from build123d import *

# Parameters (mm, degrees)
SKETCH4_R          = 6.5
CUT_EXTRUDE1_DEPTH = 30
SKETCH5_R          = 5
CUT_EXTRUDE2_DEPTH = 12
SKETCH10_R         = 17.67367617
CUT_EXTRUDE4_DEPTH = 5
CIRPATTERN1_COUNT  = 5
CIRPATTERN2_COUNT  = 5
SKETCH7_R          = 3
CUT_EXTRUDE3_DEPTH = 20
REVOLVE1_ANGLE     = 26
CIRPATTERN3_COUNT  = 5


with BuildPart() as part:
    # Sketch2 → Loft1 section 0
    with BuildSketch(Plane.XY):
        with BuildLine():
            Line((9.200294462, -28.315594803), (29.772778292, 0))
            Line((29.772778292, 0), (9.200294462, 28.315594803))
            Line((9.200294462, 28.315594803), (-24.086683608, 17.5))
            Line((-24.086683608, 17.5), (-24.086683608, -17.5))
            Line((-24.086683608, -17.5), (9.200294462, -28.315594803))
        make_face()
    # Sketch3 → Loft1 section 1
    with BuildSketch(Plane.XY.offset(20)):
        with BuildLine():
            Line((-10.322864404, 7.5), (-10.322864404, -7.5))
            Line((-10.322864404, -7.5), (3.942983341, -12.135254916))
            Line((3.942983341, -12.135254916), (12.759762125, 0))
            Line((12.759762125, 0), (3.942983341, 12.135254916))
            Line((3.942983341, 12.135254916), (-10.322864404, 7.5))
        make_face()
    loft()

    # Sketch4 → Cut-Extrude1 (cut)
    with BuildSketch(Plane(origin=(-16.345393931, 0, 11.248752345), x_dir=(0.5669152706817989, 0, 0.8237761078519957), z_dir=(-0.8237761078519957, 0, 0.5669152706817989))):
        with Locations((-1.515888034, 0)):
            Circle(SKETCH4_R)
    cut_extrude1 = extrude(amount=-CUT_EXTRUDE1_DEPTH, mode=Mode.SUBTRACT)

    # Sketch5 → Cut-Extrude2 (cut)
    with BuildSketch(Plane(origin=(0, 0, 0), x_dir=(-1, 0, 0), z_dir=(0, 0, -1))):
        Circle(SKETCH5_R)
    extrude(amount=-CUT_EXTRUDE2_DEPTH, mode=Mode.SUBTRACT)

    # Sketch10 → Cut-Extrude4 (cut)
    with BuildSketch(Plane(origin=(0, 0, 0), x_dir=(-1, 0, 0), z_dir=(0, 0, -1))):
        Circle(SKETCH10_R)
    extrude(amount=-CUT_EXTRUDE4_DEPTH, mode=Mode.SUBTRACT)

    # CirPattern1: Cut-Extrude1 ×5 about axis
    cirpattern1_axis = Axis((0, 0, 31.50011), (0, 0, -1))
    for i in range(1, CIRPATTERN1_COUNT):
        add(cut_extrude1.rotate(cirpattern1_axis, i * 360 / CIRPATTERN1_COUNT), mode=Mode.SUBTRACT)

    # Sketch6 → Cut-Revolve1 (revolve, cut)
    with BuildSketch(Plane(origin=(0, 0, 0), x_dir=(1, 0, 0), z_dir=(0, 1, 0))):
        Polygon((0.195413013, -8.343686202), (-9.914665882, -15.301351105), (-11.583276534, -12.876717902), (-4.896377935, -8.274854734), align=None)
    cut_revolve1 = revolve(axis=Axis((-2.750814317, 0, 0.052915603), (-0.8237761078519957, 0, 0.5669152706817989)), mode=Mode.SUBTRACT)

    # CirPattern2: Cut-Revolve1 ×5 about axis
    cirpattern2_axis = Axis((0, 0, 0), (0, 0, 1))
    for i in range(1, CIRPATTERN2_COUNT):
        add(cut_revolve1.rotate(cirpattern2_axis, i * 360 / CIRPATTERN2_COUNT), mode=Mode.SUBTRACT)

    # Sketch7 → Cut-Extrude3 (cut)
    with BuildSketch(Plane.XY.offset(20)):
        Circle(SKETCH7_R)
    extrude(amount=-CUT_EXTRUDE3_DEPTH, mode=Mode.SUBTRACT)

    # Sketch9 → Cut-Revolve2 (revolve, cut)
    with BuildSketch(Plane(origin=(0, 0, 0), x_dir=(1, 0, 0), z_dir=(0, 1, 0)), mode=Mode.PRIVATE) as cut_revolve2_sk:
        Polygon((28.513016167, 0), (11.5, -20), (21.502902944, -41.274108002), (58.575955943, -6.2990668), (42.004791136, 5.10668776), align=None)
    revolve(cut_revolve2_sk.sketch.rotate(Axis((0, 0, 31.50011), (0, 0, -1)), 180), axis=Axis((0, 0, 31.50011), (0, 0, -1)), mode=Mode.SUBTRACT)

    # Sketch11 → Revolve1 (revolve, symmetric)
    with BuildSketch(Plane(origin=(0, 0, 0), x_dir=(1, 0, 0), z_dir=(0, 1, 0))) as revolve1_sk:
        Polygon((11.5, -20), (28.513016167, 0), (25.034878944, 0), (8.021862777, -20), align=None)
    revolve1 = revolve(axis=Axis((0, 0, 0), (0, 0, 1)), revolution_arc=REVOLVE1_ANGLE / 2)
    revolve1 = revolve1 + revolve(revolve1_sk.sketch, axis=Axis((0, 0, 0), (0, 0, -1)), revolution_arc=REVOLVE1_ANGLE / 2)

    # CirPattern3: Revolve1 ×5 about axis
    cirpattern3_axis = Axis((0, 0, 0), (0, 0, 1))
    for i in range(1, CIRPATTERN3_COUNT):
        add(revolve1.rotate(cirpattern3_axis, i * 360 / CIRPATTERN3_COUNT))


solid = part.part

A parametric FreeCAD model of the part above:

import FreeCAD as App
import Part
import Sketcher
from FreeCAD import Vector
Q = App.Units.Quantity

doc = App.newDocument("Part")
body = doc.addObject("PartDesign::Body", "Body")

# Sketch on XY plane
sketch1 = doc.addObject("Sketcher::SketchObject", "Sketch")
body.addObject(sketch1)
sketch1.AttachmentSupport = (doc.XY_Plane, [""])
sketch1.MapMode = "FlatFace"
sketch1.addGeometry([
    Part.LineSegment(Vector(9.200294, -28.315595, 0), Vector(29.772778, 0, 0)),  # 0
    Part.LineSegment(Vector(29.772778, 0, 0), Vector(9.200294, 28.315595, 0)),  # 1
    Part.LineSegment(Vector(9.200294, 28.315595, 0), Vector(-24.086684, 17.5, 0)),  # 2
    Part.LineSegment(Vector(-24.086684, 17.5, 0), Vector(-24.086684, -17.5, 0)),  # 3
    Part.LineSegment(Vector(-24.086684, -17.5, 0), Vector(9.200294, -28.315595, 0)),  # 4
], False)
sketch1.addConstraint([
    Sketcher.Constraint("Coincident", 0, 2, 1, 1),
    Sketcher.Constraint("Coincident", 1, 2, 2, 1),
    Sketcher.Constraint("Coincident", 2, 2, 3, 1),
    Sketcher.Constraint("Coincident", 3, 2, 4, 1),
    Sketcher.Constraint("Coincident", 4, 2, 0, 1),
    Sketcher.Constraint("Vertical", 3),
    Sketcher.Constraint("Symmetric", 1, 2, 4, 2, -1),
    Sketcher.Constraint("PointOnObject", 0, 2, -1),
    Sketcher.Constraint("Equal", 1, 2),
    Sketcher.Constraint("Equal", 2, 4),
    Sketcher.Constraint("DistanceY", 3, 2, 3, 1, 35.0),
    Sketcher.Constraint("Angle", 0, Q("54 deg")),
    Sketcher.Constraint("Angle", 2, Q("-162 deg")),
    Sketcher.Constraint("DistanceX", -1, 1, 0, 2, 29.772778),
])

# Sketch on XY plane
sketch2 = doc.addObject("Sketcher::SketchObject", "Sketch001")
body.addObject(sketch2)
sketch2.AttachmentSupport = (doc.XY_Plane, [""])
sketch2.MapMode = "FlatFace"
sketch2.AttachmentOffset = App.Placement(Vector(0, 0, 20), App.Rotation())
sketch2.addGeometry([
    Part.LineSegment(Vector(-10.322864, 7.5, 0), Vector(-10.322864, -7.5, 0)),  # 0
    Part.LineSegment(Vector(-10.322864, -7.5, 0), Vector(3.942983, -12.135255, 0)),  # 1
    Part.LineSegment(Vector(3.942983, -12.135255, 0), Vector(12.759762, 0, 0)),  # 2
    Part.LineSegment(Vector(12.759762, 0, 0), Vector(3.942983, 12.135255, 0)),  # 3
    Part.LineSegment(Vector(3.942983, 12.135255, 0), Vector(-10.322864, 7.5, 0)),  # 4
], False)
sketch2.addConstraint([
    Sketcher.Constraint("Coincident", 0, 2, 1, 1),
    Sketcher.Constraint("Coincident", 1, 2, 2, 1),
    Sketcher.Constraint("Coincident", 2, 2, 3, 1),
    Sketcher.Constraint("Coincident", 3, 2, 4, 1),
    Sketcher.Constraint("Coincident", 4, 2, 0, 1),
    Sketcher.Constraint("Vertical", 0),
    Sketcher.Constraint("Symmetric", 1, 2, 3, 2, -1),
    Sketcher.Constraint("PointOnObject", 2, 2, -1),
    Sketcher.Constraint("Equal", 1, 2),
    Sketcher.Constraint("Equal", 3, 4),
    Sketcher.Constraint("DistanceY", 0, 2, 0, 1, 15.0),
    Sketcher.Constraint("Angle", 1, Q("-18 deg")),
    Sketcher.Constraint("Angle", 2, Q("54 deg")),
    Sketcher.Constraint("DistanceX", 0, 2, -1, 1, 10.322864),
])

additiveloft = doc.addObject("PartDesign::AdditiveLoft", "AdditiveLoft")
body.addObject(additiveloft)
additiveloft.Profile = sketch1
additiveloft.Sections = [sketch2]

# Sketch on an angled plane
sketch3 = doc.addObject("Sketcher::SketchObject", "Sketch002")
body.addObject(sketch3)
sketch3.Placement = App.Placement(Vector(-16.345394, 0, 11.248752), App.Rotation(Vector(0.566915271, 0, 0.823776108), Vector(0, 1.000000001, 0), Vector(-0.823776108, 0, 0.566915271), "ZXY"))
sketch3.addGeometry(Part.Circle(Vector(-1.515888, 0, 0), Vector(0, 0, 1), 6.5), False)
sketch3.addConstraint([
    Sketcher.Constraint("PointOnObject", 0, 3, -1),
    Sketcher.Constraint("Diameter", 0, 13.0),
    Sketcher.Constraint("DistanceX", 0, 3, -1, 1, 1.515888),
])
pocket1 = doc.addObject("PartDesign::Pocket", "Pocket")
body.addObject(pocket1)
pocket1.Profile = sketch3
pocket1.Length = 30

# Sketch on XY plane
sketch4 = doc.addObject("Sketcher::SketchObject", "Sketch003")
body.addObject(sketch4)
sketch4.AttachmentSupport = (doc.XY_Plane, [""])
sketch4.MapMode = "FlatFace"
sketch4.addGeometry(Part.Circle(Vector(0, 0, 0), Vector(0, 0, 1), 5), False)
sketch4.addConstraint([
    Sketcher.Constraint("Coincident", 0, 3, -1, 1),
    Sketcher.Constraint("Diameter", 0, 10.0),
])
pocket2 = doc.addObject("PartDesign::Pocket", "Pocket001")
body.addObject(pocket2)
pocket2.Profile = sketch4
pocket2.Length = 12
pocket2.Reversed = True

# Sketch on XY plane
sketch5 = doc.addObject("Sketcher::SketchObject", "Sketch004")
body.addObject(sketch5)
sketch5.AttachmentSupport = (doc.XY_Plane, [""])
sketch5.MapMode = "FlatFace"
sketch5.addGeometry(Part.Circle(Vector(0, 0, 0), Vector(0, 0, 1), 17.673676), False)
sketch5.addConstraint([
    Sketcher.Constraint("Coincident", 0, 3, -1, 1),
    Sketcher.Constraint("Diameter", 0, 35.347352),
])
pocket3 = doc.addObject("PartDesign::Pocket", "Pocket002")
body.addObject(pocket3)
pocket3.Profile = sketch5
pocket3.Length = 5
pocket3.Reversed = True
doc.recompute()

polarpattern = doc.addObject("PartDesign::PolarPattern", "PolarPattern")
body.addObject(polarpattern)
polarpattern.Originals = [pocket1]
polarpattern.Axis = (doc.Z_Axis, [""])
polarpattern.Angle = 360
polarpattern.Occurrences = 5
body.Tip = polarpattern

# Sketch on XZ plane
sketch6 = doc.addObject("Sketcher::SketchObject", "Sketch005")
body.addObject(sketch6)
sketch6.AttachmentSupport = (doc.XZ_Plane, [""])
sketch6.MapMode = "FlatFace"
sketch6.addGeometry([
    Part.LineSegment(Vector(-9.914666, 15.301351, 0), Vector(0.195413, 8.343686, 0)),
    Part.LineSegment(Vector(0.195413, 8.343686, 0), Vector(-4.896378, 8.274855, 0)),
    Part.LineSegment(Vector(-4.896378, 8.274855, 0), Vector(-11.583277, 12.876718, 0)),
    Part.LineSegment(Vector(-11.583277, 12.876718, 0), Vector(-9.914666, 15.301351, 0)),
], False)
sketch6.addGeometry(Part.LineSegment(Vector(-4.623367, 1.341589, 0), Vector(-14.733446, 8.299254, 0)), True)  # axis
sketch6.addConstraint([
    Sketcher.Constraint("Coincident", 0, 2, 1, 1),
    Sketcher.Constraint("Coincident", 1, 2, 2, 1),
    Sketcher.Constraint("Coincident", 2, 2, 3, 1),
    Sketcher.Constraint("Coincident", 3, 2, 0, 1),
    Sketcher.Constraint("Parallel", 0, 2),
    Sketcher.Constraint("Perpendicular", 2, 3),
    Sketcher.Constraint("Perpendicular", 3, 4),
    Sketcher.Constraint("Equal", 0, 4),
    Sketcher.Constraint("DistanceX", 2, 2, 1, 2, 6.686899),
    Sketcher.Constraint("DistanceX", 3, 2, 4, 1, 5.291299),
    Sketcher.Constraint("DistanceY", 1, 2, 4, 2, 0.024399),
    Sketcher.Constraint("DistanceY", -1, 1, 3, 2, 15.301351),
    Sketcher.Constraint("DistanceY", -1, 1, 4, 1, 1.341589),
    Sketcher.Constraint("DistanceX", 1, 2, 0, 2, 5.091791),
    Sketcher.Constraint("DistanceY", 1, 2, 0, 2, 0.068831),
    Sketcher.Constraint("DistanceX", -1, 1, 0, 2, 0.195413),
])
groove = doc.addObject("PartDesign::Groove", "Groove")
body.addObject(groove)
groove.Profile = sketch6
groove.ReferenceAxis = (sketch6, ["Axis0"])
groove.Angle = 360
doc.recompute()

polarpattern2 = doc.addObject("PartDesign::PolarPattern", "PolarPattern001")
body.addObject(polarpattern2)
polarpattern2.Originals = [groove]
polarpattern2.Axis = (doc.Z_Axis, [""])
polarpattern2.Angle = 360
polarpattern2.Occurrences = 5
body.Tip = polarpattern2

# Sketch on XY plane
sketch7 = doc.addObject("Sketcher::SketchObject", "Sketch006")
body.addObject(sketch7)
sketch7.AttachmentSupport = (doc.XY_Plane, [""])
sketch7.MapMode = "FlatFace"
sketch7.AttachmentOffset = App.Placement(Vector(0, 0, 20), App.Rotation())
sketch7.addGeometry(Part.Circle(Vector(0, 0, 0), Vector(0, 0, 1), 3), False)
sketch7.addConstraint([
    Sketcher.Constraint("Coincident", 0, 3, -1, 1),
    Sketcher.Constraint("Diameter", 0, 6.0),
])
pocket4 = doc.addObject("PartDesign::Pocket", "Pocket003")
body.addObject(pocket4)
pocket4.Profile = sketch7
pocket4.Length = 20

# Sketch on XZ plane
sketch8 = doc.addObject("Sketcher::SketchObject", "Sketch007")
body.addObject(sketch8)
sketch8.AttachmentSupport = (doc.XZ_Plane, [""])
sketch8.MapMode = "FlatFace"
sketch8.addGeometry([
    Part.LineSegment(Vector(28.513016, 0, 0), Vector(11.5, 20, 0)),  # 0
    Part.LineSegment(Vector(11.5, 20, 0), Vector(21.502903, 41.274108, 0)),  # 1
    Part.LineSegment(Vector(21.502903, 41.274108, 0), Vector(58.575956, 6.299067, 0)),  # 2
    Part.LineSegment(Vector(58.575956, 6.299067, 0), Vector(42.004791, -5.106688, 0)),  # 3
    Part.LineSegment(Vector(42.004791, -5.106688, 0), Vector(28.513016, 0, 0)),  # 4
], False)
sketch8.addConstraint([
    Sketcher.Constraint("Coincident", 0, 2, 1, 1),
    Sketcher.Constraint("Coincident", 1, 2, 2, 1),
    Sketcher.Constraint("Coincident", 2, 2, 3, 1),
    Sketcher.Constraint("Coincident", 3, 2, 4, 1),
    Sketcher.Constraint("Coincident", 4, 2, 0, 1),
    Sketcher.Constraint("PointOnObject", 4, 2, -1),
    Sketcher.Constraint("DistanceY", -1, 1, 0, 2, 20.0),
    Sketcher.Constraint("DistanceX", -1, 1, 0, 2, 11.5),
    Sketcher.Constraint("Distance", 0, 26.257241),
    Sketcher.Constraint("Distance", 1, 23.508418),
    Sketcher.Constraint("Distance", 2, 50.967291),
    Sketcher.Constraint("Distance", 4, 14.425888),
    Sketcher.Constraint("DistanceY", -1, 1, 1, 2, 41.274108),
    Sketcher.Constraint("DistanceX", -1, 1, 3, 2, 42.004791),
    Sketcher.Constraint("DistanceY", 2, 2, 1, 2, 34.975041),
])
groove2 = doc.addObject("PartDesign::Groove", "Groove001")
body.addObject(groove2)
groove2.Profile = sketch8
groove2.ReferenceAxis = (sketch8, ["V_Axis"])
groove2.Angle = 360

# Sketch on XZ plane
sketch9 = doc.addObject("Sketcher::SketchObject", "Sketch008")
body.addObject(sketch9)
sketch9.AttachmentSupport = (doc.XZ_Plane, [""])
sketch9.MapMode = "FlatFace"
sketch9.addGeometry([
    Part.LineSegment(Vector(11.5, 20, 0), Vector(28.513016, 0, 0)),
    Part.LineSegment(Vector(28.513016, 0, 0), Vector(25.034879, 0, 0)),
    Part.LineSegment(Vector(25.034879, 0, 0), Vector(8.021863, 20, 0)),
    Part.LineSegment(Vector(8.021863, 20, 0), Vector(11.5, 20, 0)),
], False)
sketch9.addConstraint([
    Sketcher.Constraint("Coincident", 0, 2, 1, 1),
    Sketcher.Constraint("Coincident", 1, 2, 2, 1),
    Sketcher.Constraint("Coincident", 2, 2, 3, 1),
    Sketcher.Constraint("Coincident", 3, 2, 0, 1),
    Sketcher.Constraint("Horizontal", 1),
    Sketcher.Constraint("Horizontal", 3),
    Sketcher.Constraint("PointOnObject", 0, 2, -1),
    Sketcher.Constraint("Parallel", 0, 2),
    Sketcher.Constraint("DistanceY", -1, 1, 2, 2, 20.0),
    Sketcher.Constraint("DistanceX", -1, 1, 3, 2, 11.5),
    Sketcher.Constraint("Distance", 0, 26.257241),
    Sketcher.Constraint("DistanceX", 1, 2, 1, 1, 3.478137),
])
revolution = doc.addObject("PartDesign::Revolution", "Revolution")
body.addObject(revolution)
revolution.Profile = sketch9
revolution.ReferenceAxis = (sketch9, ["V_Axis"])
revolution.Angle = 13

# Sketch on XZ plane
sketch10 = doc.addObject("Sketcher::SketchObject", "Sketch009")
body.addObject(sketch10)
sketch10.AttachmentSupport = (doc.XZ_Plane, [""])
sketch10.MapMode = "FlatFace"
sketch10.addGeometry([
    Part.LineSegment(Vector(11.5, 20, 0), Vector(28.513016, 0, 0)),
    Part.LineSegment(Vector(28.513016, 0, 0), Vector(25.034879, 0, 0)),
    Part.LineSegment(Vector(25.034879, 0, 0), Vector(8.021863, 20, 0)),
    Part.LineSegment(Vector(8.021863, 20, 0), Vector(11.5, 20, 0)),
], False)
sketch10.addConstraint([
    Sketcher.Constraint("Coincident", 0, 2, 1, 1),
    Sketcher.Constraint("Coincident", 1, 2, 2, 1),
    Sketcher.Constraint("Coincident", 2, 2, 3, 1),
    Sketcher.Constraint("Coincident", 3, 2, 0, 1),
    Sketcher.Constraint("Horizontal", 1),
    Sketcher.Constraint("Horizontal", 3),
    Sketcher.Constraint("PointOnObject", 0, 2, -1),
    Sketcher.Constraint("Parallel", 0, 2),
    Sketcher.Constraint("DistanceY", -1, 1, 2, 2, 20.0),
    Sketcher.Constraint("DistanceX", -1, 1, 3, 2, 11.5),
    Sketcher.Constraint("Distance", 0, 26.257241),
    Sketcher.Constraint("DistanceX", 1, 2, 1, 1, 3.478137),
])
revolution2 = doc.addObject("PartDesign::Revolution", "Revolution001")
body.addObject(revolution2)
revolution2.Profile = sketch10
revolution2.ReferenceAxis = (sketch10, ["V_Axis"])
revolution2.Angle = 13
revolution2.Reversed = True
doc.recompute()

polarpattern3 = doc.addObject("PartDesign::PolarPattern", "PolarPattern002")
body.addObject(polarpattern3)
polarpattern3.Originals = [revolution, revolution2]
polarpattern3.Axis = (doc.Z_Axis, [""])
polarpattern3.Angle = 360
polarpattern3.Occurrences = 5
body.Tip = polarpattern3

doc.recompute()
